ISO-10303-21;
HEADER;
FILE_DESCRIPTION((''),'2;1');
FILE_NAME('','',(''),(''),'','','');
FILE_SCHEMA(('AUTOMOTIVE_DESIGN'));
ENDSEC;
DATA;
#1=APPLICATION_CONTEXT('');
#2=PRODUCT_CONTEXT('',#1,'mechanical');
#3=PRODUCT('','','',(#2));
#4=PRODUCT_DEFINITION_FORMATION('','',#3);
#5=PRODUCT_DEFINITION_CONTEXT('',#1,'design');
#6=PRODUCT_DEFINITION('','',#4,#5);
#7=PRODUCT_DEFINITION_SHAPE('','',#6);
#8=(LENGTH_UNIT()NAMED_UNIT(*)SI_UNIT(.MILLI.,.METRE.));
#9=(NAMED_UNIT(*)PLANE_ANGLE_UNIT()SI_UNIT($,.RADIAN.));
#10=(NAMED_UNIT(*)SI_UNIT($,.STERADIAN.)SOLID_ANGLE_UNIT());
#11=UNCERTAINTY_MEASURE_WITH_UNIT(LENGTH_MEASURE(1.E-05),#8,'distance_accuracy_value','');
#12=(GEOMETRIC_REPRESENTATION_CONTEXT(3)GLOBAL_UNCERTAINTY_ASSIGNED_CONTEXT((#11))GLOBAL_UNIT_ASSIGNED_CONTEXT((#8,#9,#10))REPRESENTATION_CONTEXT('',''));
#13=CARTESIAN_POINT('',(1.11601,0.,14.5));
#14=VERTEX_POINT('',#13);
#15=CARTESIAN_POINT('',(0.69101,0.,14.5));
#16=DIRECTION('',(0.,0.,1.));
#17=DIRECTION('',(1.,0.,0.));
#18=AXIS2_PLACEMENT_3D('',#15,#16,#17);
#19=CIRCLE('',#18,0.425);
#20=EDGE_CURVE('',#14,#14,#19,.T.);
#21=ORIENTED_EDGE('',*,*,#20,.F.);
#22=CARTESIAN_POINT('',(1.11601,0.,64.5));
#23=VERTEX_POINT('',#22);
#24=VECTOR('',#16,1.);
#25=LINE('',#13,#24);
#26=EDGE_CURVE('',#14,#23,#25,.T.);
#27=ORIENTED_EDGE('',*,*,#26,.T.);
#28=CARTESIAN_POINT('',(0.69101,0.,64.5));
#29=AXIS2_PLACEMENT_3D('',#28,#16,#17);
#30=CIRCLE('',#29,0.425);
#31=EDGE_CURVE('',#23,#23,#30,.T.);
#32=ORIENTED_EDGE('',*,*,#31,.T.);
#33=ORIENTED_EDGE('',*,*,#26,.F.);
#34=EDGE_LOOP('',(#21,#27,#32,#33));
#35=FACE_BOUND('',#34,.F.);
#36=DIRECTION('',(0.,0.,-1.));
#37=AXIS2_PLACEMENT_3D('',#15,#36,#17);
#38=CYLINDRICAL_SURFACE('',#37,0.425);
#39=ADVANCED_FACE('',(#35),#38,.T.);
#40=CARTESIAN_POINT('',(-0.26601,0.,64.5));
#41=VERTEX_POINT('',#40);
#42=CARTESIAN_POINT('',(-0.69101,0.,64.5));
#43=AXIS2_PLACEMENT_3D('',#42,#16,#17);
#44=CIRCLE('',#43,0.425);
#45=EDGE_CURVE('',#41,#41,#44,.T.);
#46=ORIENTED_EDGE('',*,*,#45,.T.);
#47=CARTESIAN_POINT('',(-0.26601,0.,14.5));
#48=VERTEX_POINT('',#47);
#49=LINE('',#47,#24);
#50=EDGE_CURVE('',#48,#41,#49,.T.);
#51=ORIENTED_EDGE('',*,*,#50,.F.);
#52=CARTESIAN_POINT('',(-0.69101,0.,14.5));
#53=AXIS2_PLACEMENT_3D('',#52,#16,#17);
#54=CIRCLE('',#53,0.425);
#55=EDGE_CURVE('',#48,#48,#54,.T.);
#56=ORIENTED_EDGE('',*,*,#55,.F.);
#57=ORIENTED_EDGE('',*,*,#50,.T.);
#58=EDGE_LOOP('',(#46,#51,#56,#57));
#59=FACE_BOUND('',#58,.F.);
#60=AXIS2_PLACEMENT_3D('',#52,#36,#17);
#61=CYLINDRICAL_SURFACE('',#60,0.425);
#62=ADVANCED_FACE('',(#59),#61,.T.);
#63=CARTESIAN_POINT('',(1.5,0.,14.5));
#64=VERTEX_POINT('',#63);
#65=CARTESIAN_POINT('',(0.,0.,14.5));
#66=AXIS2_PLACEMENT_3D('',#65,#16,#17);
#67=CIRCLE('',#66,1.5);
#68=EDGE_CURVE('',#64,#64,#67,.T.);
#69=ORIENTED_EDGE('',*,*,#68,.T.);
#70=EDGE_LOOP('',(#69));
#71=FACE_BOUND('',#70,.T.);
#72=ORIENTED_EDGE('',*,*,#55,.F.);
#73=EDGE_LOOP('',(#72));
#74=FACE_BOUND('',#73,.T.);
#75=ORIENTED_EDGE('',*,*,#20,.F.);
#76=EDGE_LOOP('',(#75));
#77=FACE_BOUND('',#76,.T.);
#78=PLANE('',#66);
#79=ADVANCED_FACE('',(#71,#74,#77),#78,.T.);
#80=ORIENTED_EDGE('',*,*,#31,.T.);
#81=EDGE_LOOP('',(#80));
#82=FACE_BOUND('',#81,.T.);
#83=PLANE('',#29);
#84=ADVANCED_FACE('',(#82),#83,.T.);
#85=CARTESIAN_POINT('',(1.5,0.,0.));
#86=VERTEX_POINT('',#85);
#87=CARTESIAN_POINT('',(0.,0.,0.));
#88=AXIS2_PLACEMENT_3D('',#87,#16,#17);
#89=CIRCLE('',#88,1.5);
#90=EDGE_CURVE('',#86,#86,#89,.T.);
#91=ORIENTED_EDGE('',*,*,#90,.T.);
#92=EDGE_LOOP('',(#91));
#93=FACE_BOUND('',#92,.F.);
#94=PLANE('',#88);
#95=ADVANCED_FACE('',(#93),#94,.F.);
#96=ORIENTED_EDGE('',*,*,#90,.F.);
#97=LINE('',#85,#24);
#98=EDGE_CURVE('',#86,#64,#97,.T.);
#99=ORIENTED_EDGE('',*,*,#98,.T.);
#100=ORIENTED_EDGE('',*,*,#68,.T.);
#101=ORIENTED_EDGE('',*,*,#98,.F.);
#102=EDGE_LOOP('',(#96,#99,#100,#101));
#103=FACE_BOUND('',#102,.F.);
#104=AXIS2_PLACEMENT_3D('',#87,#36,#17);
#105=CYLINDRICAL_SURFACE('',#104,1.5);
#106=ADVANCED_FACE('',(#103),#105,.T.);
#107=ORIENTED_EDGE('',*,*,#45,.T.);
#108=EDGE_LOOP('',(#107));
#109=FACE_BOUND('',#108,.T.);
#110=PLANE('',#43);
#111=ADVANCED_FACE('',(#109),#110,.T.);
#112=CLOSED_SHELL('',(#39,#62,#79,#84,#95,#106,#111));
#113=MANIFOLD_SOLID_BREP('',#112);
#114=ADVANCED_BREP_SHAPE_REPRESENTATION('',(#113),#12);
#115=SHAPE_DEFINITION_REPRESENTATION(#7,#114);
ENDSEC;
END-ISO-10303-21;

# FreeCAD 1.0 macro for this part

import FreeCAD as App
import Part
import Sketcher
from FreeCAD import Vector

doc = App.newDocument("Part")
body = doc.addObject("PartDesign::Body", "Body")

sketch1 = body.newObject("Sketcher::SketchObject", "Sketch")
sketch1.AttachmentSupport = (doc.getObject("XY_Plane"), [""])
sketch1.MapMode = "FlatFace"
sketch1.addGeometry(Part.Circle(Vector(0, 0, 0), Vector(0, 0, 1), 1.5), False)
sketch1.addConstraint([
    Sketcher.Constraint("Coincident", 0, 3, -1, 1),
    Sketcher.Constraint("Diameter", 0, 3.0),
])
pad1 = body.newObject("PartDesign::Pad", "Pad")
pad1.Profile = sketch1
pad1.Length = 14.5

sketch2 = body.newObject("Sketcher::SketchObject", "Sketch001")
sketch2.AttachmentSupport = (doc.getObject("XY_Plane"), [""])
sketch2.MapMode = "FlatFace"
sketch2.AttachmentOffset = App.Placement(Vector(0, 0, 14.5), App.Rotation())
sketch2.addGeometry([
    Part.Circle(Vector(-0.69, 0, 0), Vector(0, 0, 1), 0.42),
    Part.Circle(Vector(0.69, 0, 0), Vector(0, 0, 1), 0.42),
], False)
sketch2.addConstraint([
    Sketcher.Constraint("Equal", 0, 1),
    Sketcher.Constraint("Symmetric", 0, 3, 1, 3, -1, 1),
    Sketcher.Constraint("PointOnObject", 0, 3, -1),
    Sketcher.Constraint("Diameter", 0, 0.85),
    Sketcher.Constraint("DistanceX", 0, 3, -1, 1, 0.69101),
])
pad2 = body.newObject("PartDesign::Pad", "Pad001")
pad2.Profile = sketch2
pad2.Length = 50

doc.recompute()
